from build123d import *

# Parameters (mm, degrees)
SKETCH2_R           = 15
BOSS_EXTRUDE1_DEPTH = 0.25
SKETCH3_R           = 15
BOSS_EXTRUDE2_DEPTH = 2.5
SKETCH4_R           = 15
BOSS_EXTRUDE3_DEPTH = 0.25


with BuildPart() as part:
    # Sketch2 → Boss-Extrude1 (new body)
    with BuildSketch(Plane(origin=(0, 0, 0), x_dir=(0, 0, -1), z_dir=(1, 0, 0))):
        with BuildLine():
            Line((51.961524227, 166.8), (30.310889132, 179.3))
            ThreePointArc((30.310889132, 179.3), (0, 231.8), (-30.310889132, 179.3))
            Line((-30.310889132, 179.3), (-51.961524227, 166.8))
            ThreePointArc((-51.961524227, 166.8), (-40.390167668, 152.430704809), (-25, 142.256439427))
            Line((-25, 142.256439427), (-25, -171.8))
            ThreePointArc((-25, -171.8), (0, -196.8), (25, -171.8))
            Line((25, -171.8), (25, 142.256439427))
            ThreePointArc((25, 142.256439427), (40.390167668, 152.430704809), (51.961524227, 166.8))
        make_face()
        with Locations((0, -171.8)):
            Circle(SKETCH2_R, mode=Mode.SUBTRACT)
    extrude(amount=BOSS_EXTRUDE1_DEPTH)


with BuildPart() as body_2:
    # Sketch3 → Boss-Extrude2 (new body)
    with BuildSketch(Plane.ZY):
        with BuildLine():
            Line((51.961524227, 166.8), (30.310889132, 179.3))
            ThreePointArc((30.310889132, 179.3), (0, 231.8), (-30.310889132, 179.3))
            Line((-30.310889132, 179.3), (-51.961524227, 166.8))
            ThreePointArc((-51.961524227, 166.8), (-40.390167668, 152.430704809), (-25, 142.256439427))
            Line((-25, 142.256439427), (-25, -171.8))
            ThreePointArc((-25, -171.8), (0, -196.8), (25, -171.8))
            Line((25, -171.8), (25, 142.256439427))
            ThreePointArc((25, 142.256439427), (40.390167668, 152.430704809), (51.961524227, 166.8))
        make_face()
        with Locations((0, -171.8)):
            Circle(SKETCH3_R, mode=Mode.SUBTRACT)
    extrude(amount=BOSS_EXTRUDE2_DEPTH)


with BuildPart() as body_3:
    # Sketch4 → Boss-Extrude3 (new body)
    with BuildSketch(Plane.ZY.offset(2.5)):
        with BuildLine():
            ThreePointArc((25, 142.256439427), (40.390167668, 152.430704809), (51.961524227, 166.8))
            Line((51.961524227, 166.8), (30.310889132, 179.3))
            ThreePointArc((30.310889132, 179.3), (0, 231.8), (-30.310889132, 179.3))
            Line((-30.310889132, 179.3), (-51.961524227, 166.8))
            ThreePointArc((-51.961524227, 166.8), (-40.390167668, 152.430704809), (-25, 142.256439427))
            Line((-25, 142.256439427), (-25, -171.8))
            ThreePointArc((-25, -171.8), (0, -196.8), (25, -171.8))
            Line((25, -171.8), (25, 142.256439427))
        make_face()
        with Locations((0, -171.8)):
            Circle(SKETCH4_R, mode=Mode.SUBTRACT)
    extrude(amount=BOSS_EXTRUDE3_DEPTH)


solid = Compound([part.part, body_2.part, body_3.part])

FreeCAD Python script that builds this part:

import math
import FreeCAD as App
import Part
import Sketcher
from FreeCAD import Vector
Q = App.Units.Quantity

doc = App.newDocument("Part")
body = doc.addObject("PartDesign::Body", "Body")

sketch1 = doc.addObject("Sketcher::SketchObject", "Sketch")
body.addObject(sketch1)
sketch1.AttachmentSupport = (doc.YZ_Plane, [""])
sketch1.MapMode = "FlatFace"
sketch1.addGeometry([
    Part.LineSegment(Vector(167, -52, 0), Vector(179, -30, 0)),
    Part.ArcOfCircle(Part.Circle(Vector(197, 0, 0), Vector(0, 0, 1), 35), math.radians(-120), math.radians(120)),
    Part.LineSegment(Vector(179, 30, 0), Vector(167, 52, 0)),
    Part.ArcOfCircle(Part.Circle(Vector(197, 0, 0), Vector(0, 0, 1), 60), math.radians(120), math.radians(155)),
    Part.LineSegment(Vector(142, 25, 0), Vector(-172, 25, 0)),
    Part.ArcOfCircle(Part.Circle(Vector(-172, 0, 0), Vector(0, 0, 1), 25), math.radians(90), math.radians(270)),
    Part.LineSegment(Vector(-172, -25, 0), Vector(142, -25, 0)),
    Part.ArcOfCircle(Part.Circle(Vector(197, 0, 0), Vector(0, 0, 1), 60), math.radians(-155), math.radians(-120)),
    Part.Circle(Vector(-172, 0, 0), Vector(0, 0, 1), 15),
], False)
sketch1.addConstraint([
    Sketcher.Constraint("Coincident", 0, 2, 1, 1),
    Sketcher.Constraint("Coincident", 1, 2, 2, 1),
    Sketcher.Constraint("Coincident", 2, 2, 3, 1),
    Sketcher.Constraint("Coincident", 3, 2, 4, 1),
    Sketcher.Constraint("Tangent", 4, 2, 5, 1),
    Sketcher.Constraint("Tangent", 5, 2, 6, 1),
    Sketcher.Constraint("Coincident", 6, 2, 7, 1),
    Sketcher.Constraint("Coincident", 7, 2, 0, 1),
    Sketcher.Constraint("Horizontal", 4),
    Sketcher.Constraint("Horizontal", 6),
    Sketcher.Constraint("Coincident", 3, 3, 1, 3),
    Sketcher.Constraint("Coincident", 7, 3, 1, 3),
    Sketcher.Constraint("Coincident", 8, 3, 5, 3),
    Sketcher.Constraint("Equal", 3, 7),
    Sketcher.Constraint("Symmetric", 0, 2, 1, 2, -1),
    Sketcher.Constraint("PointOnObject", 5, 3, -1),
    Sketcher.Constraint("Vertical", 2, 2, 7, 2),
    Sketcher.Constraint("Diameter", 8, Q("30 mm")),
    Sketcher.Constraint("Radius", 1, Q("35 mm")),
    Sketcher.Constraint("Radius", 3, Q("60 mm")),
    Sketcher.Constraint("Radius", 5, Q("25 mm")),
    Sketcher.Constraint("Angle", 0, Q("60 deg")),
    Sketcher.Constraint("DistanceX", 2, 2, 3, 3, Q("30 mm")),
    Sketcher.Constraint("DistanceX", -1, 1, 1, 3, Q("196.8 mm")),
    Sketcher.Constraint("DistanceX", 5, 3, -1, 1, Q("171.8 mm")),
])
pad1 = doc.addObject("PartDesign::Pad", "Pad")
body.addObject(pad1)
pad1.Profile = sketch1
pad1.Length = 0.25
body2 = doc.addObject("PartDesign::Body", "Body001")

sketch2 = doc.addObject("Sketcher::SketchObject", "Sketch001")
body2.addObject(sketch2)
sketch2.AttachmentSupport = (doc.getObject("YZ_Plane001"), [""])
sketch2.MapMode = "FlatFace"
sketch2.addGeometry([
    Part.LineSegment(Vector(167, 52, 0), Vector(179, 30, 0)),
    Part.ArcOfCircle(Part.Circle(Vector(197, 0, 0), Vector(0, 0, 1), 35), math.radians(-120), math.radians(120)),
    Part.LineSegment(Vector(179, -30, 0), Vector(167, -52, 0)),
    Part.ArcOfCircle(Part.Circle(Vector(197, 0, 0), Vector(0, 0, 1), 60), math.radians(-155), math.radians(-120)),
    Part.LineSegment(Vector(142, -25, 0), Vector(-172, -25, 0)),
    Part.ArcOfCircle(Part.Circle(Vector(-172, 0, 0), Vector(0, 0, 1), 25), math.radians(90), math.radians(270)),
    Part.LineSegment(Vector(-172, 25, 0), Vector(142, 25, 0)),
    Part.ArcOfCircle(Part.Circle(Vector(197, 0, 0), Vector(0, 0, 1), 60), math.radians(120), math.radians(155)),
    Part.Circle(Vector(-172, 0, 0), Vector(0, 0, 1), 15),
], False)
sketch2.addConstraint([
    Sketcher.Constraint("Coincident", 0, 2, 1, 2),
    Sketcher.Constraint("Coincident", 1, 1, 2, 1),
    Sketcher.Constraint("Coincident", 2, 2, 3, 2),
    Sketcher.Constraint("Coincident", 3, 1, 4, 1),
    Sketcher.Constraint("Tangent", 4, 2, 5, 2),
    Sketcher.Constraint("Tangent", 5, 1, 6, 1),
    Sketcher.Constraint("Coincident", 6, 2, 7, 2),
    Sketcher.Constraint("Coincident", 7, 1, 0, 1),
    Sketcher.Constraint("Horizontal", 4),
    Sketcher.Constraint("Horizontal", 6),
    Sketcher.Constraint("Coincident", 3, 3, 1, 3),
    Sketcher.Constraint("Coincident", 7, 3, 1, 3),
    Sketcher.Constraint("Coincident", 8, 3, 5, 3),
    Sketcher.Constraint("Equal", 3, 7),
    Sketcher.Constraint("Symmetric", 0, 2, 1, 1, -1),
    Sketcher.Constraint("PointOnObject", 5, 3, -1),
    Sketcher.Constraint("Vertical", 2, 2, 7, 1),
    Sketcher.Constraint("Diameter", 8, Q("30 mm")),
    Sketcher.Constraint("Radius", 1, Q("35 mm")),
    Sketcher.Constraint("Radius", 3, Q("60 mm")),
    Sketcher.Constraint("Radius", 5, Q("25 mm")),
    Sketcher.Constraint("Angle", 0, Q("-60 deg")),
    Sketcher.Constraint("DistanceX", 2, 2, 3, 3, Q("30 mm")),
    Sketcher.Constraint("DistanceX", -1, 1, 1, 3, Q("196.8 mm")),
    Sketcher.Constraint("DistanceX", 5, 3, -1, 1, Q("171.8 mm")),
])
pad2 = doc.addObject("PartDesign::Pad", "Pad001")
body2.addObject(pad2)
pad2.Profile = sketch2
pad2.Length = 2.5
pad2.Reversed = True
body3 = doc.addObject("PartDesign::Body", "Body002")

sketch3 = doc.addObject("Sketcher::SketchObject", "Sketch002")
body3.addObject(sketch3)
sketch3.AttachmentSupport = (doc.getObject("YZ_Plane002"), [""])
sketch3.MapMode = "FlatFace"
sketch3.AttachmentOffset = App.Placement(Vector(0, 0, -2.5), App.Rotation())
sketch3.addGeometry([
    Part.ArcOfCircle(Part.Circle(Vector(197, 0, 0), Vector(0, 0, 1), 60), math.radians(120), math.radians(155)),
    Part.LineSegment(Vector(167, 52, 0), Vector(179, 30, 0)),
    Part.ArcOfCircle(Part.Circle(Vector(197, 0, 0), Vector(0, 0, 1), 35), math.radians(-120), math.radians(120)),
    Part.LineSegment(Vector(179, -30, 0), Vector(167, -52, 0)),
    Part.ArcOfCircle(Part.Circle(Vector(197, 0, 0), Vector(0, 0, 1), 60), math.radians(-155), math.radians(-120)),
    Part.LineSegment(Vector(142, -25, 0), Vector(-172, -25, 0)),
    Part.ArcOfCircle(Part.Circle(Vector(-172, 0, 0), Vector(0, 0, 1), 25), math.radians(90), math.radians(270)),
    Part.LineSegment(Vector(-172, 25, 0), Vector(142, 25, 0)),
    Part.Circle(Vector(-172, 0, 0), Vector(0, 0, 1), 15),
], False)
sketch3.addConstraint([
    Sketcher.Constraint("Coincident", 0, 1, 1, 1),
    Sketcher.Constraint("Coincident", 1, 2, 2, 2),
    Sketcher.Constraint("Coincident", 2, 1, 3, 1),
    Sketcher.Constraint("Coincident", 3, 2, 4, 2),
    Sketcher.Constraint("Coincident", 4, 1, 5, 1),
    Sketcher.Constraint("Tangent", 5, 2, 6, 2),
    Sketcher.Constraint("Tangent", 6, 1, 7, 1),
    Sketcher.Constraint("Coincident", 7, 2, 0, 2),
    Sketcher.Constraint("Horizontal", 5),
    Sketcher.Constraint("Horizontal", 7),
    Sketcher.Constraint("Coincident", 2, 3, 0, 3),
    Sketcher.Constraint("Coincident", 4, 3, 0, 3),
    Sketcher.Constraint("Coincident", 8, 3, 6, 3),
    Sketcher.Constraint("Equal", 0, 4),
    Sketcher.Constraint("Symmetric", 1, 2, 2, 1, -1),
    Sketcher.Constraint("PointOnObject", 6, 3, -1),
    Sketcher.Constraint("Vertical", 0, 1, 3, 2),
    Sketcher.Constraint("Diameter", 8, Q("30 mm")),
    Sketcher.Constraint("Radius", 0, Q("60 mm")),
    Sketcher.Constraint("Radius", 2, Q("35 mm")),
    Sketcher.Constraint("Radius", 6, Q("25 mm")),
    Sketcher.Constraint("Angle", 1, Q("-60 deg")),
    Sketcher.Constraint("DistanceX", 0, 1, 0, 3, Q("30 mm")),
    Sketcher.Constraint("DistanceX", -1, 1, 0, 3, Q("196.8 mm")),
    Sketcher.Constraint("DistanceX", 6, 3, -1, 1, Q("171.8 mm")),
])
pad3 = doc.addObject("PartDesign::Pad", "Pad002")
body3.addObject(pad3)
pad3.Profile = sketch3
pad3.Length = 0.25
pad3.Reversed = True

doc.recompute()
